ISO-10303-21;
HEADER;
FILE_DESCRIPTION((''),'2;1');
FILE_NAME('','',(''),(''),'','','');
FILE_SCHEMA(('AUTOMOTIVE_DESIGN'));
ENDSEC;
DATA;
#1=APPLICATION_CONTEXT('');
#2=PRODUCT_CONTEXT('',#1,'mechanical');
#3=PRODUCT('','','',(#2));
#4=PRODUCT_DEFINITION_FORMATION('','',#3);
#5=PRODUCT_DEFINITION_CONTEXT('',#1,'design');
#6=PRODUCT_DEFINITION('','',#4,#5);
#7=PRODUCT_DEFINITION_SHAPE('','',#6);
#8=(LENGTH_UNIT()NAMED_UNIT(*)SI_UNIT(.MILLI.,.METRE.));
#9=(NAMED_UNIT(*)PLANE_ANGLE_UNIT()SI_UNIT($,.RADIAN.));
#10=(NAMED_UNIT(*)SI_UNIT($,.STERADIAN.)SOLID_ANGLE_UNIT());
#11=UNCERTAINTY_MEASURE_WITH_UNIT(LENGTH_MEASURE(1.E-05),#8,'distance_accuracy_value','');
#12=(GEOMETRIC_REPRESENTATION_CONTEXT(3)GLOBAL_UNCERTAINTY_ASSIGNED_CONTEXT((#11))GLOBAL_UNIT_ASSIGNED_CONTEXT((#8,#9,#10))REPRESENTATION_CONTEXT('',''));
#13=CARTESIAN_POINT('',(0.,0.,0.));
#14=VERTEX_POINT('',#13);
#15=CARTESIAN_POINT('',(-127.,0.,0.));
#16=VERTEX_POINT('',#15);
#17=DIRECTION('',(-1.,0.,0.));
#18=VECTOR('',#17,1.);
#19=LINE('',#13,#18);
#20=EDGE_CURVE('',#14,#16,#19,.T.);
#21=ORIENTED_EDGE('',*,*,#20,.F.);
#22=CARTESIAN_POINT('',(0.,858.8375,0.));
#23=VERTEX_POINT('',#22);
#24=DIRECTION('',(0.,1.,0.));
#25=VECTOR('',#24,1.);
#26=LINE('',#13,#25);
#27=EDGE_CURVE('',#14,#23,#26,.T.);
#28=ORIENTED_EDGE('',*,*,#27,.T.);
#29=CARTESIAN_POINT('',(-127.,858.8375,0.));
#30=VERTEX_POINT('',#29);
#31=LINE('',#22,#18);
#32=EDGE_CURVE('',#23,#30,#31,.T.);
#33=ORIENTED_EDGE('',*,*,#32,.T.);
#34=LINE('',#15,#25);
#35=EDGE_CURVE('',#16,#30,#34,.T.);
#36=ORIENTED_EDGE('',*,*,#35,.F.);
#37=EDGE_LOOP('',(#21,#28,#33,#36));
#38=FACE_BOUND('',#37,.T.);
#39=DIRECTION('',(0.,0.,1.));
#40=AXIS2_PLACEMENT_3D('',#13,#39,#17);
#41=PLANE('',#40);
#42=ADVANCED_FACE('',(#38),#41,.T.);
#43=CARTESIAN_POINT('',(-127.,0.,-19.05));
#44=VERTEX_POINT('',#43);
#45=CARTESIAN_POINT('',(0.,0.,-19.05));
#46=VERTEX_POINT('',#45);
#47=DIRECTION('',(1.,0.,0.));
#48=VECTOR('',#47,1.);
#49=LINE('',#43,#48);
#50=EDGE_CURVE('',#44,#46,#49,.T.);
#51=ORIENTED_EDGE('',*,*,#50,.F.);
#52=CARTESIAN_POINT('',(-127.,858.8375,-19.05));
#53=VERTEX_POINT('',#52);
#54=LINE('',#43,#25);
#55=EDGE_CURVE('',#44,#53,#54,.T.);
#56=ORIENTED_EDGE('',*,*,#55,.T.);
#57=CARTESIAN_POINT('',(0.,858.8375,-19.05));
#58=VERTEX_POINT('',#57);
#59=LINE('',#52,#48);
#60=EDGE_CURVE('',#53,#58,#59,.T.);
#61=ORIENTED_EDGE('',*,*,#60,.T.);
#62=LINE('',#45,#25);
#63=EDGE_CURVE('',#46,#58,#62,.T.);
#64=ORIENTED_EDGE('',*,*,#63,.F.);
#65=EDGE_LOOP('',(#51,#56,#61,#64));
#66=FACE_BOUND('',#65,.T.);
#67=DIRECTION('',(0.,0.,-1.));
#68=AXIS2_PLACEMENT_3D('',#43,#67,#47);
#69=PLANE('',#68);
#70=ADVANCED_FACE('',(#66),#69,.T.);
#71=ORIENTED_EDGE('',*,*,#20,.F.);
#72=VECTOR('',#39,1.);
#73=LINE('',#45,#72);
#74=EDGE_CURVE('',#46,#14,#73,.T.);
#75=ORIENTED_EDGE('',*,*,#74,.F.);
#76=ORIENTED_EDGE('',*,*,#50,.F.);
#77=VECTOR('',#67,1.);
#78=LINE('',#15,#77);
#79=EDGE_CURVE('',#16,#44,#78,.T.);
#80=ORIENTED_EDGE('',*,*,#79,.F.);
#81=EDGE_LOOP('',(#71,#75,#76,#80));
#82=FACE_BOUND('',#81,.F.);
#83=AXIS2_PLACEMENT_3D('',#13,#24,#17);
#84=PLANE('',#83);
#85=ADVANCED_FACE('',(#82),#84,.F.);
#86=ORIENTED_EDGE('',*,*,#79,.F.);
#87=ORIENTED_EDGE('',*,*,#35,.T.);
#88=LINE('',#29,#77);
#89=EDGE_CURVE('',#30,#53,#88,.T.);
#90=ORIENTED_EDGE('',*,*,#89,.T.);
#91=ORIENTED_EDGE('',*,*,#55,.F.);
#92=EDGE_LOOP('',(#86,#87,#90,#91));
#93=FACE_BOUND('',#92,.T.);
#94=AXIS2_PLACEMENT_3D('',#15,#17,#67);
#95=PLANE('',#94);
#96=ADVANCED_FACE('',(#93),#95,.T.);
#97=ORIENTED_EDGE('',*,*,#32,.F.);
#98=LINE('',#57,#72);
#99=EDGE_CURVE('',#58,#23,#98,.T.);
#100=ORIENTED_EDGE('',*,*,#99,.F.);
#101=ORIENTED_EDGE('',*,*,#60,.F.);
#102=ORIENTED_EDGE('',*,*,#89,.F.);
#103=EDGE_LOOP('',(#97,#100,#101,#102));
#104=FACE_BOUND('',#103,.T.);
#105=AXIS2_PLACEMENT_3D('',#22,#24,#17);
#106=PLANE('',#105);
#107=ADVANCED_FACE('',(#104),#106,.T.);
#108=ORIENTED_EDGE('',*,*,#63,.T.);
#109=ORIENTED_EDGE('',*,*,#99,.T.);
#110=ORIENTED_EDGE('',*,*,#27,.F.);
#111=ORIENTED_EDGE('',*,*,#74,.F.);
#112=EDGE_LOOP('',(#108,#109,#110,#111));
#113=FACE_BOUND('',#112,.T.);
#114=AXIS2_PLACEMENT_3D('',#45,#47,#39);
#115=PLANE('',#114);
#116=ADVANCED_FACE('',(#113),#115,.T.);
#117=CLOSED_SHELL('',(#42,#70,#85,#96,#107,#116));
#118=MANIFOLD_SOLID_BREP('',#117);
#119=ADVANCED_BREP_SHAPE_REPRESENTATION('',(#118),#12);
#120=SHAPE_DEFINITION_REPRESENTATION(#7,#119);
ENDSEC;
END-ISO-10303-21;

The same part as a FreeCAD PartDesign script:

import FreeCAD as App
import Part
import Sketcher
Q = App.Units.Quantity


def add_polygon(sketch, points):
    """Adds a closed chain of lines whose ends are joined by coincident constraints."""
    first, n = sketch.GeometryCount, len(points)
    for a, b in zip(points, points[1:] + points[:1]):
        sketch.addGeometry(Part.LineSegment(App.Vector(*a, 0), App.Vector(*b, 0)), False)
    for i in range(n):
        sketch.addConstraint(Sketcher.Constraint("Coincident", first + i, 2, first + (i + 1) % n, 1))

doc = App.newDocument("Part")
params = doc.addObject("Spreadsheet::Sheet", "Params")
for row, (alias, value) in enumerate([
    ("sketch1_width", "5 in"),
    ("sketch1_height", "0.75 in"),
    ("pad1_length", "33.8125 in"),
], start=1):
    params.set(f"A{row}", alias)
    params.set(f"B{row}", "=" + value)
    params.setAlias(f"B{row}", alias)

body = doc.addObject("PartDesign::Body", "Body")

# Sketch on XZ plane
sketch1 = body.newObject("Sketcher::SketchObject", "Sketch")
sketch1.AttachmentSupport = (doc.getObject("XZ_Plane"), [""])
sketch1.MapMode = "FlatFace"
add_polygon(sketch1, [(-127, 0), (0, 0), (0, -19), (-127, -19)])  # lines 0-3
sketch1.addConstraint([
    Sketcher.Constraint("Horizontal", 0),
    Sketcher.Constraint("Vertical", 1),
    Sketcher.Constraint("Horizontal", 2),
    Sketcher.Constraint("Vertical", 3),
    Sketcher.Constraint("Coincident", 0, 2, -1, 1),
    Sketcher.Constraint("DistanceX", 0, 1, 0, 2, Q("5 in")),
    Sketcher.Constraint("DistanceY", 1, 2, 1, 1, Q("0.75 in")),
])
sketch1.setExpression("Constraints[9]", "Params.sketch1_width")
sketch1.setExpression("Constraints[10]", "Params.sketch1_height")
pad1 = body.newObject("PartDesign::Pad", "Pad")
pad1.Profile = sketch1
pad1.setExpression("Length", "Params.pad1_length")
pad1.Reversed = True

doc.recompute()
